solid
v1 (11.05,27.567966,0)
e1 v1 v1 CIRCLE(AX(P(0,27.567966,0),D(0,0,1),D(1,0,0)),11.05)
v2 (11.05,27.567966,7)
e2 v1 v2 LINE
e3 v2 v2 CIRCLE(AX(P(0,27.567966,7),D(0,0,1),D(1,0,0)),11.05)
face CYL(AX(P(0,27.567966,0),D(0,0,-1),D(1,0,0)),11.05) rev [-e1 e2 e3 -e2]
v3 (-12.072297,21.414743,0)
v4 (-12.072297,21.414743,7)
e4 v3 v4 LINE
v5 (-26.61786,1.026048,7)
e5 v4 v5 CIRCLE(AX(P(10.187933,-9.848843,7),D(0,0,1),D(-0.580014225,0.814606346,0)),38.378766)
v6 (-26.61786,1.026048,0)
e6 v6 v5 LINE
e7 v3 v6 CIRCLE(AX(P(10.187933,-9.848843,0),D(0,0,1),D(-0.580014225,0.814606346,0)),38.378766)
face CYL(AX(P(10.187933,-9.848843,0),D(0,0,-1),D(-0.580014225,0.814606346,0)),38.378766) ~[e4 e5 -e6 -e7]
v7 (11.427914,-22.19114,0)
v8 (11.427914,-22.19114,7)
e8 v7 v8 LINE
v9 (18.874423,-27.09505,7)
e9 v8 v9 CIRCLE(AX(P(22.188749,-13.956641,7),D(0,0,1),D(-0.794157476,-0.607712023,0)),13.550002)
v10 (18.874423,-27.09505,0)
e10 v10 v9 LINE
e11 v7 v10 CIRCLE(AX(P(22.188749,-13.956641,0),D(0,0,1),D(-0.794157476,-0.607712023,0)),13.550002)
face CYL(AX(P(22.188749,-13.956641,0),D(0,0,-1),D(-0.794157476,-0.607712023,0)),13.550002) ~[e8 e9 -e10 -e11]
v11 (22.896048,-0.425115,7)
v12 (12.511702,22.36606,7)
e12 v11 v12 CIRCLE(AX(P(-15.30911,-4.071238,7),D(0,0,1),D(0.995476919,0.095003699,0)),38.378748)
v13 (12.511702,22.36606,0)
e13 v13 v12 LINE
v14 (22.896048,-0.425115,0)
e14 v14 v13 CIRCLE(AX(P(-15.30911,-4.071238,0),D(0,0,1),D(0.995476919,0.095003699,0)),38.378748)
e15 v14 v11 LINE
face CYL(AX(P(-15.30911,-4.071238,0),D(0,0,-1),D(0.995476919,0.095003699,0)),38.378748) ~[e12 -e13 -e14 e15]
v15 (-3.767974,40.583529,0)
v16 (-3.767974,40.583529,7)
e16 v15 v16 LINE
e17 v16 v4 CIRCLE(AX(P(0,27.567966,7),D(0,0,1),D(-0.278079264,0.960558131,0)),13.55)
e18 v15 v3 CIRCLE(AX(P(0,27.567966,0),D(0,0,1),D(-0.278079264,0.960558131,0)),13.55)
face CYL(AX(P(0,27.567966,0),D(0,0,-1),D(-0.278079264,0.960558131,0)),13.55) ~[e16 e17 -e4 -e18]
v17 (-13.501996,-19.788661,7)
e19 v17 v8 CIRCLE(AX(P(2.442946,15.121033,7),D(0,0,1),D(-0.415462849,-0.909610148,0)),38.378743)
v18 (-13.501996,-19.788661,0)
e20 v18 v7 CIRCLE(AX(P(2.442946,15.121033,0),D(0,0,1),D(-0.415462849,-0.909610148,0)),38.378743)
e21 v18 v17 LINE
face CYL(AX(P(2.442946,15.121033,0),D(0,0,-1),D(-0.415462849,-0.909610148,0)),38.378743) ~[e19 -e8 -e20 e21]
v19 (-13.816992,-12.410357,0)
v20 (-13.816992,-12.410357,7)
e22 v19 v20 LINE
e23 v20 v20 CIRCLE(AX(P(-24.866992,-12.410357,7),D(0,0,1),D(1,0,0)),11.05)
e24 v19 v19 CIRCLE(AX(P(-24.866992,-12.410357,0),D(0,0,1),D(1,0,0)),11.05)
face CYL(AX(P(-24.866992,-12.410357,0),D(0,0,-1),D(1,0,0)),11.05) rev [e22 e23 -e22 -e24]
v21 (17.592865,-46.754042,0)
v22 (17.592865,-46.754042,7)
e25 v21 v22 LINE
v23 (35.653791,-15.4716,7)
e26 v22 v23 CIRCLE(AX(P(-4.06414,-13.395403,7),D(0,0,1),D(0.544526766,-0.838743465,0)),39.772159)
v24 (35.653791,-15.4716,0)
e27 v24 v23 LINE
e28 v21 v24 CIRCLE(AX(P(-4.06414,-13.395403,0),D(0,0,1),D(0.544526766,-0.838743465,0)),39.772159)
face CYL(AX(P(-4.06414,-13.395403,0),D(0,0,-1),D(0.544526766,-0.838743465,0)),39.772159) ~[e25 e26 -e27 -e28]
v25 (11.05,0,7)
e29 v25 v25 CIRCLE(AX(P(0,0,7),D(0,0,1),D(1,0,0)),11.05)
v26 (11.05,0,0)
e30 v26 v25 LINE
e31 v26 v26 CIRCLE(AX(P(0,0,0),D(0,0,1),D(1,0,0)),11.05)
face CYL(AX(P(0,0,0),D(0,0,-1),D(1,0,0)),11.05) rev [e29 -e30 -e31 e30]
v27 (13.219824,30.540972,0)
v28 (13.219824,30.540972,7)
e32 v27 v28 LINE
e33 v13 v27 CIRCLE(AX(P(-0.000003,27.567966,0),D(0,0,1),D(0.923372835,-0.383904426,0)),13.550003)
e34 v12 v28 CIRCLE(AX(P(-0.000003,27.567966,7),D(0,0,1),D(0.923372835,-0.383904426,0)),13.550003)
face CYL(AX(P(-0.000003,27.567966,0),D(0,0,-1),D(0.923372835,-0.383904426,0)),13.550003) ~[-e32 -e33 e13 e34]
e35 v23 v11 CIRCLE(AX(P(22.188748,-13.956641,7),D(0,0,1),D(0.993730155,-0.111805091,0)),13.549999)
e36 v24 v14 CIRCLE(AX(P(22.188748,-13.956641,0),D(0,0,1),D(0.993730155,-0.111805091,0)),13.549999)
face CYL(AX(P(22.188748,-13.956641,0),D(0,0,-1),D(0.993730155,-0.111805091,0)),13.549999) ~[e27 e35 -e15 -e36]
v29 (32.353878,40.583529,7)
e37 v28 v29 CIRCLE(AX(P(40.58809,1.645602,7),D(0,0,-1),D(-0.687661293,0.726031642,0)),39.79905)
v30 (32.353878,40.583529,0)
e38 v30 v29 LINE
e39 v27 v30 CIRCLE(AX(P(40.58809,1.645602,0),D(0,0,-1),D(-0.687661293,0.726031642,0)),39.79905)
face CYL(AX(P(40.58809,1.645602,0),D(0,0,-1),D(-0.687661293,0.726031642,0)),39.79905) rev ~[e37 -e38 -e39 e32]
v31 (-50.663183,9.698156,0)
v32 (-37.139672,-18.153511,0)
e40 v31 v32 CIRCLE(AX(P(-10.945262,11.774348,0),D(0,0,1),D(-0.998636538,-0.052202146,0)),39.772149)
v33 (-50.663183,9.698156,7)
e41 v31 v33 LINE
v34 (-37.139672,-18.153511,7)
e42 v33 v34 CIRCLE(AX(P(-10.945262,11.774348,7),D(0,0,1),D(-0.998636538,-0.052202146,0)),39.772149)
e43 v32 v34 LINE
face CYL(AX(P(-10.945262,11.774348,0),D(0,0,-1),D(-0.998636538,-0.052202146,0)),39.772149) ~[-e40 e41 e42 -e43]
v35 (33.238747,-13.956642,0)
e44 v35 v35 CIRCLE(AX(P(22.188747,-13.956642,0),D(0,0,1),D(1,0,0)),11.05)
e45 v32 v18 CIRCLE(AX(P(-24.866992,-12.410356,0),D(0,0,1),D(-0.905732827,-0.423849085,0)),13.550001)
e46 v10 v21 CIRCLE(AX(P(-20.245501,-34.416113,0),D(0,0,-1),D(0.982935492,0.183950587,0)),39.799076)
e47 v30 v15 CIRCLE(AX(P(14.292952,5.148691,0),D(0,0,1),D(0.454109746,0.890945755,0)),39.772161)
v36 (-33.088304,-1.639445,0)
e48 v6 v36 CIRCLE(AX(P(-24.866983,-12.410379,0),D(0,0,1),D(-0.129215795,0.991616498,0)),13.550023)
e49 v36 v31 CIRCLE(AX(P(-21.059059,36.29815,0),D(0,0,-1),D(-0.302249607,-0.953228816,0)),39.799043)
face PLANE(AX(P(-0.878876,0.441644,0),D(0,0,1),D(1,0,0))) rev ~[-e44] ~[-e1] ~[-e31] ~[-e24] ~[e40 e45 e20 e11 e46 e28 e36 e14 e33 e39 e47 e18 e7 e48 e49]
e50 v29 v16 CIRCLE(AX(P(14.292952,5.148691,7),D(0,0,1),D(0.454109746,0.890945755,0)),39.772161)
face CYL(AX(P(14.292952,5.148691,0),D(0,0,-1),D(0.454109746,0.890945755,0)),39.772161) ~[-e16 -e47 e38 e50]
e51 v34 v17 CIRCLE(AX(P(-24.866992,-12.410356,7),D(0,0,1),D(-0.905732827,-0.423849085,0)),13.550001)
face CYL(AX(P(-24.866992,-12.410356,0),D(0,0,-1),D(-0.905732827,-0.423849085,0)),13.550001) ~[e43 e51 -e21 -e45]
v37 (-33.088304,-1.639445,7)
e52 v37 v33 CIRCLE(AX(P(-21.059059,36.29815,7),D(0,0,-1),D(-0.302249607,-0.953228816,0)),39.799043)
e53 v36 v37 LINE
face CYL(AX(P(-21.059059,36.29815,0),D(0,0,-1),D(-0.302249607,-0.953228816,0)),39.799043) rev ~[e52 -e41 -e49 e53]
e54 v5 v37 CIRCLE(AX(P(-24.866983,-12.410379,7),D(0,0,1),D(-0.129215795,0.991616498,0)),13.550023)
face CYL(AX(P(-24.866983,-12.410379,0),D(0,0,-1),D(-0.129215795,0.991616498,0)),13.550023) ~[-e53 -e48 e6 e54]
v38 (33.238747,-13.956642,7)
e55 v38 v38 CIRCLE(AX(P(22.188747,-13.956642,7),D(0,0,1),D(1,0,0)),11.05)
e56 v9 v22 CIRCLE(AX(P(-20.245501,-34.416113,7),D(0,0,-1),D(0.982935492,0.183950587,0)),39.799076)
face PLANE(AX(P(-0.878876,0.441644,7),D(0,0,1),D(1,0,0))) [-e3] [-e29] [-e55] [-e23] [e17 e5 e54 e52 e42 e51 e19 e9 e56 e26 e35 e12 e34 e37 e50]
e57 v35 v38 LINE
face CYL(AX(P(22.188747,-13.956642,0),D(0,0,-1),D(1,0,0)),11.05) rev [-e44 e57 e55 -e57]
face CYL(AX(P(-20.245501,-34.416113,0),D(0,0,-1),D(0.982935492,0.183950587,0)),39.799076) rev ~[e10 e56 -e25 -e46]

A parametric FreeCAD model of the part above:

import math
import FreeCAD as App
import Part
import Sketcher

doc = App.newDocument("Part")
body = doc.addObject("PartDesign::Body", "Body")

sketch1 = body.newObject("Sketcher::SketchObject", "Sketch")
sketch1.AttachmentSupport = (doc.getObject("XY_Plane"), [""])
sketch1.MapMode = "FlatFace"
sketch1.addGeometry(Part.ArcOfCircle(Part.Circle(App.Vector(-15.30911, -4.071238, 0), App.Vector(0, 0, 1), 38.378748), math.radians(5.451533), math.radians(43.539346)), False)
sketch1.addGeometry(Part.ArcOfCircle(Part.Circle(App.Vector(-0.000003, 27.567966, 0), App.Vector(0, 0, 1), 13.550003), math.radians(-22.575742), math.radians(12.674381)), False)
sketch1.addGeometry(Part.ArcOfCircle(Part.Circle(App.Vector(40.58809, 1.645602, 0), App.Vector(0, 0, 1), 39.79905), math.radians(101.940435), math.radians(133.445264)), False)
sketch1.addGeometry(Part.ArcOfCircle(Part.Circle(App.Vector(14.292952, 5.148691, 0), App.Vector(0, 0, 1), 39.772161), math.radians(62.992332), math.radians(117.007668)), False)
sketch1.addGeometry(Part.ArcOfCircle(Part.Circle(App.Vector(0, 27.567966, 0), App.Vector(0, 0, 1), 13.55), math.radians(106.145603), math.radians(207.007838)), False)
sketch1.addGeometry(Part.ArcOfCircle(Part.Circle(App.Vector(10.187933, -9.848843, 0), App.Vector(0, 0, 1), 38.378766), math.radians(125.451543), math.radians(163.539338)), False)
sketch1.addGeometry(Part.ArcOfCircle(Part.Circle(App.Vector(-24.866983, -12.410379, 0), App.Vector(0, 0, 1), 13.550023), math.radians(97.424278), math.radians(127.354048)), False)
sketch1.addGeometry(Part.ArcOfCircle(Part.Circle(App.Vector(-21.059059, 36.29815, 0), App.Vector(0, 0, 1), 39.799043), math.radians(-138.059569), math.radians(-107.59277)), False)
sketch1.addGeometry(Part.ArcOfCircle(Part.Circle(App.Vector(-10.945262, 11.774348, 0), App.Vector(0, 0, 1), 39.772149), math.radians(-177.007677), math.radians(-131.194094)), False)
sketch1.addGeometry(Part.ArcOfCircle(Part.Circle(App.Vector(-24.866992, -12.410356, 0), App.Vector(0, 0, 1), 13.550001), math.radians(-154.922164), math.radians(-32.992166)), False)
sketch1.addGeometry(Part.ArcOfCircle(Part.Circle(App.Vector(2.442946, 15.121033, 0), App.Vector(0, 0, 1), 38.378743), math.radians(-114.548468), math.radians(-76.460649)), False)
sketch1.addGeometry(Part.ArcOfCircle(Part.Circle(App.Vector(22.188749, -13.956641, 0), App.Vector(0, 0, 1), 13.550002), math.radians(-142.575749), math.radians(-104.158178)), False)
sketch1.addGeometry(Part.ArcOfCircle(Part.Circle(App.Vector(-20.245501, -34.416113, 0), App.Vector(0, 0, 1), 39.799076), math.radians(-18.059556), math.radians(10.599955)), False)
sketch1.addGeometry(Part.ArcOfCircle(Part.Circle(App.Vector(-4.06414, -13.395403, 0), App.Vector(0, 0, 1), 39.772159), math.radians(-57.00767), math.radians(-2.99233)), False)
sketch1.addGeometry(Part.ArcOfCircle(Part.Circle(App.Vector(22.188748, -13.956641, 0), App.Vector(0, 0, 1), 13.549999), math.radians(-6.419382), math.radians(87.007844)), False)
sketch1.addGeometry(Part.Circle(App.Vector(-24.866992, -12.410357, 0), App.Vector(0, 0, 1), 11.05), False)
sketch1.addGeometry(Part.Circle(App.Vector(22.188747, -13.956642, 0), App.Vector(0, 0, 1), 11.05), False)
sketch1.addGeometry(Part.Circle(App.Vector(0, 0, 0), App.Vector(0, 0, 1), 11.05), False)
sketch1.addGeometry(Part.Circle(App.Vector(0, 27.567966, 0), App.Vector(0, 0, 1), 11.05), False)
sketch1.addConstraint(Sketcher.Constraint("Coincident", 0, 2, 1, 1))
sketch1.addConstraint(Sketcher.Constraint("Coincident", 1, 2, 2, 2))
sketch1.addConstraint(Sketcher.Constraint("Coincident", 2, 1, 3, 1))
sketch1.addConstraint(Sketcher.Constraint("Coincident", 3, 2, 4, 1))
sketch1.addConstraint(Sketcher.Constraint("Coincident", 4, 2, 5, 1))
sketch1.addConstraint(Sketcher.Constraint("Coincident", 5, 2, 6, 1))
sketch1.addConstraint(Sketcher.Constraint("Coincident", 6, 2, 7, 2))
sketch1.addConstraint(Sketcher.Constraint("Coincident", 7, 1, 8, 1))
sketch1.addConstraint(Sketcher.Constraint("Coincident", 8, 2, 9, 1))
sketch1.addConstraint(Sketcher.Constraint("Coincident", 9, 2, 10, 1))
sketch1.addConstraint(Sketcher.Constraint("Coincident", 10, 2, 11, 1))
sketch1.addConstraint(Sketcher.Constraint("Coincident", 11, 2, 12, 2))
sketch1.addConstraint(Sketcher.Constraint("Coincident", 12, 1, 13, 1))
sketch1.addConstraint(Sketcher.Constraint("Coincident", 13, 2, 14, 1))
sketch1.addConstraint(Sketcher.Constraint("Coincident", 14, 2, 0, 1))
sketch1.addConstraint(Sketcher.Constraint("Coincident", 17, 3, -1, 1))
sketch1.addConstraint(Sketcher.Constraint("Coincident", 4, 3, 1, 3))
sketch1.addConstraint(Sketcher.Constraint("Coincident", 14, 3, 11, 3))
sketch1.addConstraint(Sketcher.Constraint("Coincident", 15, 3, 9, 3))
sketch1.addConstraint(Sketcher.Constraint("Coincident", 16, 3, 11, 3))
sketch1.addConstraint(Sketcher.Constraint("Coincident", 18, 3, 1, 3))
sketch1.addConstraint(Sketcher.Constraint("PointOnObject", 4, 3, -2))
sketch1.addConstraint(Sketcher.Constraint("Diameter", 15, 22.1))
sketch1.addConstraint(Sketcher.Constraint("Diameter", 16, 22.1))
sketch1.addConstraint(Sketcher.Constraint("Diameter", 17, 22.1))
sketch1.addConstraint(Sketcher.Constraint("Diameter", 18, 22.1))
sketch1.addConstraint(Sketcher.Constraint("Radius", 4, 13.55))
sketch1.addConstraint(Sketcher.Constraint("Radius", 9, 13.550001))
sketch1.addConstraint(Sketcher.Constraint("Radius", 11, 13.550002))
sketch1.addConstraint(Sketcher.Constraint("Radius", 14, 13.549999))
sketch1.addConstraint(Sketcher.Constraint("Radius", 2, 39.79905))
sketch1.addConstraint(Sketcher.Constraint("Radius", 3, 39.772161))
sketch1.addConstraint(Sketcher.Constraint("Radius", 8, 39.772149))
sketch1.addConstraint(Sketcher.Constraint("Radius", 13, 39.772159))
sketch1.addConstraint(Sketcher.Constraint("Radius", 0, 38.378748))
sketch1.addConstraint(Sketcher.Constraint("Radius", 1, 13.550003))
sketch1.addConstraint(Sketcher.Constraint("Radius", 5, 38.378766))
sketch1.addConstraint(Sketcher.Constraint("Radius", 6, 13.550023))
sketch1.addConstraint(Sketcher.Constraint("Radius", 7, 39.799043))
sketch1.addConstraint(Sketcher.Constraint("Radius", 10, 38.378743))
sketch1.addConstraint(Sketcher.Constraint("Radius", 12, 39.799076))
sketch1.addConstraint(Sketcher.Constraint("DistanceX", 12, 3, -1, 1, 20.245501))
sketch1.addConstraint(Sketcher.Constraint("DistanceY", 13, 2, -1, 1, 15.4716))
sketch1.addConstraint(Sketcher.Constraint("DistanceX", 0, 3, 2, 3, 55.8972))
sketch1.addConstraint(Sketcher.Constraint("DistanceY", 16, 3, 5, 3, 4.107799))
sketch1.addConstraint(Sketcher.Constraint("DistanceX", 4, 3, 0, 2, 12.511702))
sketch1.addConstraint(Sketcher.Constraint("DistanceX", 3, 2, 1, 2, 16.987798))
sketch1.addConstraint(Sketcher.Constraint("DistanceX", 5, 2, 8, 3, 15.672598))
sketch1.addConstraint(Sketcher.Constraint("DistanceY", 5, 2, 8, 3, 10.7483))
sketch1.addConstraint(Sketcher.Constraint("DistanceY", 6, 2, 7, 1, 11.337601))
sketch1.addConstraint(Sketcher.Constraint("DistanceX", 7, 1, 6, 3, 25.7962))
sketch1.addConstraint(Sketcher.Constraint("DistanceY", 10, 2, 14, 3, 8.234499))
sketch1.addConstraint(Sketcher.Constraint("DistanceY", 12, 1, 16, 3, 32.7974))
sketch1.addConstraint(Sketcher.Constraint("DistanceX", 13, 2, 2, 3, 4.934299))
sketch1.addConstraint(Sketcher.Constraint("DistanceX", 11, 3, 14, 2, 0.707299))
sketch1.addConstraint(Sketcher.Constraint("DistanceX", 0, 3, -1, 1, 15.30911))
sketch1.addConstraint(Sketcher.Constraint("DistanceY", 0, 3, -1, 1, 4.071238))
sketch1.addConstraint(Sketcher.Constraint("DistanceY", -1, 1, 3, 3, 5.148691))
sketch1.addConstraint(Sketcher.Constraint("DistanceY", 6, 3, -1, 1, 12.410379))
sketch1.addConstraint(Sketcher.Constraint("DistanceX", 7, 3, -1, 1, 21.059059))
sketch1.addConstraint(Sketcher.Constraint("DistanceY", -1, 1, 7, 3, 36.29815))
sketch1.addConstraint(Sketcher.Constraint("DistanceX", 9, 3, -1, 1, 24.866992))
sketch1.addConstraint(Sketcher.Constraint("DistanceX", 13, 3, -1, 1, 4.06414))
sketch1.addConstraint(Sketcher.Constraint("DistanceX", -1, 1, 2, 1, 32.353878))
sketch1.addConstraint(Sketcher.Constraint("DistanceY", 8, 2, -1, 1, 18.153511))
sketch1.addConstraint(Sketcher.Constraint("DistanceY", 9, 2, -1, 1, 19.788661))
pad1 = body.newObject("PartDesign::Pad", "Pad")
pad1.Profile = sketch1
pad1.Length = 7

doc.recompute()
